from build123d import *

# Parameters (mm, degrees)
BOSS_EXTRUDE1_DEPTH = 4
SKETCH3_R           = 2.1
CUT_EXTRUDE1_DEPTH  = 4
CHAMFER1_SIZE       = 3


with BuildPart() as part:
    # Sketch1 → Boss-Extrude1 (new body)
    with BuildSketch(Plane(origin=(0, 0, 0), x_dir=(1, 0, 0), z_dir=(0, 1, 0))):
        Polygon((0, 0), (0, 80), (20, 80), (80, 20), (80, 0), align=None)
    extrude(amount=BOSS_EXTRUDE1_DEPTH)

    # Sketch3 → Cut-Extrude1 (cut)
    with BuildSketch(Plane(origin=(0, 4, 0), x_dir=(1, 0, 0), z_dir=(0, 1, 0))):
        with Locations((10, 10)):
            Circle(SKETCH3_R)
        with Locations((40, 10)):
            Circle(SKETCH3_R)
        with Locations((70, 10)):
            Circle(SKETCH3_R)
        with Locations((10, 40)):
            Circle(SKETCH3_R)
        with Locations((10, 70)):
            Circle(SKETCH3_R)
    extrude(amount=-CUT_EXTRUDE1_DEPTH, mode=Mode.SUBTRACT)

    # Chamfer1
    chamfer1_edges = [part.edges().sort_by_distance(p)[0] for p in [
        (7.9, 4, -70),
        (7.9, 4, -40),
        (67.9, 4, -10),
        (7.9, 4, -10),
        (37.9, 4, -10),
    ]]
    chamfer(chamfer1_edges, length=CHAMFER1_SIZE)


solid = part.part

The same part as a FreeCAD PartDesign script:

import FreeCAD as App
import Part
import Sketcher
from FreeCAD import Vector
Q = App.Units.Quantity


def edges_at(feature, points):
    """Names of the edges that pass closest to the given points."""
    edges = feature.Shape.Edges
    near = lambda p: min(range(len(edges)), key=lambda i: edges[i].distToShape(Part.Vertex(*p))[0])
    return sorted({f"Edge{near(p) + 1}" for p in points})

doc = App.newDocument("Part")
body = doc.addObject("PartDesign::Body", "Body")

sketch1 = body.newObject("Sketcher::SketchObject", "Sketch")
sketch1.AttachmentSupport = (doc.getObject("XZ_Plane"), [""])
sketch1.MapMode = "FlatFace"
sketch1.addGeometry([
    Part.LineSegment(Vector(0, -80, 0), Vector(0, 0, 0)),
    Part.LineSegment(Vector(0, 0, 0), Vector(80, 0, 0)),
    Part.LineSegment(Vector(80, 0, 0), Vector(80, -20, 0)),
    Part.LineSegment(Vector(80, -20, 0), Vector(20, -80, 0)),
    Part.LineSegment(Vector(20, -80, 0), Vector(0, -80, 0)),
], False)
sketch1.addConstraint([
    Sketcher.Constraint("Coincident", 0, 2, 1, 1),
    Sketcher.Constraint("Coincident", 1, 2, 2, 1),
    Sketcher.Constraint("Coincident", 2, 2, 3, 1),
    Sketcher.Constraint("Coincident", 3, 2, 4, 1),
    Sketcher.Constraint("Coincident", 4, 2, 0, 1),
    Sketcher.Constraint("Vertical", 0),
    Sketcher.Constraint("Horizontal", 1),
    Sketcher.Constraint("Vertical", 2),
    Sketcher.Constraint("Horizontal", 4),
    Sketcher.Constraint("Coincident", 0, 2, -1, 1),
    Sketcher.Constraint("Equal", 1, 0),
    Sketcher.Constraint("Equal", 4, 2),
    Sketcher.Constraint("DistanceX", 1, 1, 1, 2, Q("80 mm")),
    Sketcher.Constraint("DistanceX", 4, 2, 4, 1, Q("20 mm")),
])
pad1 = body.newObject("PartDesign::Pad", "Pad")
pad1.Profile = sketch1
pad1.Length = 4
pad1.Reversed = True

sketch2 = body.newObject("Sketcher::SketchObject", "Sketch001")
sketch2.AttachmentSupport = (doc.getObject("XZ_Plane"), [""])
sketch2.MapMode = "FlatFace"
sketch2.AttachmentOffset = App.Placement(Vector(0, 0, -4), App.Rotation())
sketch2.addGeometry([
    Part.Circle(Vector(10, -10, 0), Vector(0, 0, 1), 2.1),
    Part.Circle(Vector(40, -10, 0), Vector(0, 0, 1), 2.1),
    Part.Circle(Vector(70, -10, 0), Vector(0, 0, 1), 2.1),
    Part.Circle(Vector(10, -40, 0), Vector(0, 0, 1), 2.1),
    Part.Circle(Vector(10, -70, 0), Vector(0, 0, 1), 2.1),
], False)
sketch2.addConstraint([
    Sketcher.Constraint("Equal", 0, 1),
    Sketcher.Constraint("Equal", 1, 2),
    Sketcher.Constraint("Equal", 2, 3),
    Sketcher.Constraint("Equal", 3, 4),
    Sketcher.Constraint("Horizontal", 0, 3, 1, 3),
    Sketcher.Constraint("Horizontal", 1, 3, 2, 3),
    Sketcher.Constraint("Vertical", 0, 3, 3, 3),
    Sketcher.Constraint("Vertical", 3, 3, 4, 3),
    Sketcher.Constraint("Diameter", 0, Q("4.2 mm")),
    Sketcher.Constraint("DistanceX", -1, 1, 0, 3, Q("10 mm")),
    Sketcher.Constraint("DistanceY", 0, 3, -1, 1, Q("10 mm")),
    Sketcher.Constraint("DistanceX", -1, 1, 1, 3, Q("40 mm")),
    Sketcher.Constraint("DistanceX", -1, 1, 2, 3, Q("70 mm")),
    Sketcher.Constraint("DistanceY", 3, 3, -1, 1, Q("40 mm")),
    Sketcher.Constraint("DistanceY", 4, 3, -1, 1, Q("70 mm")),
])
pocket1 = body.newObject("PartDesign::Pocket", "Pocket")
pocket1.Profile = sketch2
pocket1.Length = 4
pocket1.Reversed = True
doc.recompute()

chamfer = body.newObject("PartDesign::Chamfer", "Chamfer")
chamfer.Base = (pocket1, edges_at(pocket1, [
    (7.9, 4, -70),
    (7.9, 4, -40),
    (67.9, 4, -10),
    (7.9, 4, -10),
    (37.9, 4, -10),
]))
chamfer.Size = 3

doc.recompute()
